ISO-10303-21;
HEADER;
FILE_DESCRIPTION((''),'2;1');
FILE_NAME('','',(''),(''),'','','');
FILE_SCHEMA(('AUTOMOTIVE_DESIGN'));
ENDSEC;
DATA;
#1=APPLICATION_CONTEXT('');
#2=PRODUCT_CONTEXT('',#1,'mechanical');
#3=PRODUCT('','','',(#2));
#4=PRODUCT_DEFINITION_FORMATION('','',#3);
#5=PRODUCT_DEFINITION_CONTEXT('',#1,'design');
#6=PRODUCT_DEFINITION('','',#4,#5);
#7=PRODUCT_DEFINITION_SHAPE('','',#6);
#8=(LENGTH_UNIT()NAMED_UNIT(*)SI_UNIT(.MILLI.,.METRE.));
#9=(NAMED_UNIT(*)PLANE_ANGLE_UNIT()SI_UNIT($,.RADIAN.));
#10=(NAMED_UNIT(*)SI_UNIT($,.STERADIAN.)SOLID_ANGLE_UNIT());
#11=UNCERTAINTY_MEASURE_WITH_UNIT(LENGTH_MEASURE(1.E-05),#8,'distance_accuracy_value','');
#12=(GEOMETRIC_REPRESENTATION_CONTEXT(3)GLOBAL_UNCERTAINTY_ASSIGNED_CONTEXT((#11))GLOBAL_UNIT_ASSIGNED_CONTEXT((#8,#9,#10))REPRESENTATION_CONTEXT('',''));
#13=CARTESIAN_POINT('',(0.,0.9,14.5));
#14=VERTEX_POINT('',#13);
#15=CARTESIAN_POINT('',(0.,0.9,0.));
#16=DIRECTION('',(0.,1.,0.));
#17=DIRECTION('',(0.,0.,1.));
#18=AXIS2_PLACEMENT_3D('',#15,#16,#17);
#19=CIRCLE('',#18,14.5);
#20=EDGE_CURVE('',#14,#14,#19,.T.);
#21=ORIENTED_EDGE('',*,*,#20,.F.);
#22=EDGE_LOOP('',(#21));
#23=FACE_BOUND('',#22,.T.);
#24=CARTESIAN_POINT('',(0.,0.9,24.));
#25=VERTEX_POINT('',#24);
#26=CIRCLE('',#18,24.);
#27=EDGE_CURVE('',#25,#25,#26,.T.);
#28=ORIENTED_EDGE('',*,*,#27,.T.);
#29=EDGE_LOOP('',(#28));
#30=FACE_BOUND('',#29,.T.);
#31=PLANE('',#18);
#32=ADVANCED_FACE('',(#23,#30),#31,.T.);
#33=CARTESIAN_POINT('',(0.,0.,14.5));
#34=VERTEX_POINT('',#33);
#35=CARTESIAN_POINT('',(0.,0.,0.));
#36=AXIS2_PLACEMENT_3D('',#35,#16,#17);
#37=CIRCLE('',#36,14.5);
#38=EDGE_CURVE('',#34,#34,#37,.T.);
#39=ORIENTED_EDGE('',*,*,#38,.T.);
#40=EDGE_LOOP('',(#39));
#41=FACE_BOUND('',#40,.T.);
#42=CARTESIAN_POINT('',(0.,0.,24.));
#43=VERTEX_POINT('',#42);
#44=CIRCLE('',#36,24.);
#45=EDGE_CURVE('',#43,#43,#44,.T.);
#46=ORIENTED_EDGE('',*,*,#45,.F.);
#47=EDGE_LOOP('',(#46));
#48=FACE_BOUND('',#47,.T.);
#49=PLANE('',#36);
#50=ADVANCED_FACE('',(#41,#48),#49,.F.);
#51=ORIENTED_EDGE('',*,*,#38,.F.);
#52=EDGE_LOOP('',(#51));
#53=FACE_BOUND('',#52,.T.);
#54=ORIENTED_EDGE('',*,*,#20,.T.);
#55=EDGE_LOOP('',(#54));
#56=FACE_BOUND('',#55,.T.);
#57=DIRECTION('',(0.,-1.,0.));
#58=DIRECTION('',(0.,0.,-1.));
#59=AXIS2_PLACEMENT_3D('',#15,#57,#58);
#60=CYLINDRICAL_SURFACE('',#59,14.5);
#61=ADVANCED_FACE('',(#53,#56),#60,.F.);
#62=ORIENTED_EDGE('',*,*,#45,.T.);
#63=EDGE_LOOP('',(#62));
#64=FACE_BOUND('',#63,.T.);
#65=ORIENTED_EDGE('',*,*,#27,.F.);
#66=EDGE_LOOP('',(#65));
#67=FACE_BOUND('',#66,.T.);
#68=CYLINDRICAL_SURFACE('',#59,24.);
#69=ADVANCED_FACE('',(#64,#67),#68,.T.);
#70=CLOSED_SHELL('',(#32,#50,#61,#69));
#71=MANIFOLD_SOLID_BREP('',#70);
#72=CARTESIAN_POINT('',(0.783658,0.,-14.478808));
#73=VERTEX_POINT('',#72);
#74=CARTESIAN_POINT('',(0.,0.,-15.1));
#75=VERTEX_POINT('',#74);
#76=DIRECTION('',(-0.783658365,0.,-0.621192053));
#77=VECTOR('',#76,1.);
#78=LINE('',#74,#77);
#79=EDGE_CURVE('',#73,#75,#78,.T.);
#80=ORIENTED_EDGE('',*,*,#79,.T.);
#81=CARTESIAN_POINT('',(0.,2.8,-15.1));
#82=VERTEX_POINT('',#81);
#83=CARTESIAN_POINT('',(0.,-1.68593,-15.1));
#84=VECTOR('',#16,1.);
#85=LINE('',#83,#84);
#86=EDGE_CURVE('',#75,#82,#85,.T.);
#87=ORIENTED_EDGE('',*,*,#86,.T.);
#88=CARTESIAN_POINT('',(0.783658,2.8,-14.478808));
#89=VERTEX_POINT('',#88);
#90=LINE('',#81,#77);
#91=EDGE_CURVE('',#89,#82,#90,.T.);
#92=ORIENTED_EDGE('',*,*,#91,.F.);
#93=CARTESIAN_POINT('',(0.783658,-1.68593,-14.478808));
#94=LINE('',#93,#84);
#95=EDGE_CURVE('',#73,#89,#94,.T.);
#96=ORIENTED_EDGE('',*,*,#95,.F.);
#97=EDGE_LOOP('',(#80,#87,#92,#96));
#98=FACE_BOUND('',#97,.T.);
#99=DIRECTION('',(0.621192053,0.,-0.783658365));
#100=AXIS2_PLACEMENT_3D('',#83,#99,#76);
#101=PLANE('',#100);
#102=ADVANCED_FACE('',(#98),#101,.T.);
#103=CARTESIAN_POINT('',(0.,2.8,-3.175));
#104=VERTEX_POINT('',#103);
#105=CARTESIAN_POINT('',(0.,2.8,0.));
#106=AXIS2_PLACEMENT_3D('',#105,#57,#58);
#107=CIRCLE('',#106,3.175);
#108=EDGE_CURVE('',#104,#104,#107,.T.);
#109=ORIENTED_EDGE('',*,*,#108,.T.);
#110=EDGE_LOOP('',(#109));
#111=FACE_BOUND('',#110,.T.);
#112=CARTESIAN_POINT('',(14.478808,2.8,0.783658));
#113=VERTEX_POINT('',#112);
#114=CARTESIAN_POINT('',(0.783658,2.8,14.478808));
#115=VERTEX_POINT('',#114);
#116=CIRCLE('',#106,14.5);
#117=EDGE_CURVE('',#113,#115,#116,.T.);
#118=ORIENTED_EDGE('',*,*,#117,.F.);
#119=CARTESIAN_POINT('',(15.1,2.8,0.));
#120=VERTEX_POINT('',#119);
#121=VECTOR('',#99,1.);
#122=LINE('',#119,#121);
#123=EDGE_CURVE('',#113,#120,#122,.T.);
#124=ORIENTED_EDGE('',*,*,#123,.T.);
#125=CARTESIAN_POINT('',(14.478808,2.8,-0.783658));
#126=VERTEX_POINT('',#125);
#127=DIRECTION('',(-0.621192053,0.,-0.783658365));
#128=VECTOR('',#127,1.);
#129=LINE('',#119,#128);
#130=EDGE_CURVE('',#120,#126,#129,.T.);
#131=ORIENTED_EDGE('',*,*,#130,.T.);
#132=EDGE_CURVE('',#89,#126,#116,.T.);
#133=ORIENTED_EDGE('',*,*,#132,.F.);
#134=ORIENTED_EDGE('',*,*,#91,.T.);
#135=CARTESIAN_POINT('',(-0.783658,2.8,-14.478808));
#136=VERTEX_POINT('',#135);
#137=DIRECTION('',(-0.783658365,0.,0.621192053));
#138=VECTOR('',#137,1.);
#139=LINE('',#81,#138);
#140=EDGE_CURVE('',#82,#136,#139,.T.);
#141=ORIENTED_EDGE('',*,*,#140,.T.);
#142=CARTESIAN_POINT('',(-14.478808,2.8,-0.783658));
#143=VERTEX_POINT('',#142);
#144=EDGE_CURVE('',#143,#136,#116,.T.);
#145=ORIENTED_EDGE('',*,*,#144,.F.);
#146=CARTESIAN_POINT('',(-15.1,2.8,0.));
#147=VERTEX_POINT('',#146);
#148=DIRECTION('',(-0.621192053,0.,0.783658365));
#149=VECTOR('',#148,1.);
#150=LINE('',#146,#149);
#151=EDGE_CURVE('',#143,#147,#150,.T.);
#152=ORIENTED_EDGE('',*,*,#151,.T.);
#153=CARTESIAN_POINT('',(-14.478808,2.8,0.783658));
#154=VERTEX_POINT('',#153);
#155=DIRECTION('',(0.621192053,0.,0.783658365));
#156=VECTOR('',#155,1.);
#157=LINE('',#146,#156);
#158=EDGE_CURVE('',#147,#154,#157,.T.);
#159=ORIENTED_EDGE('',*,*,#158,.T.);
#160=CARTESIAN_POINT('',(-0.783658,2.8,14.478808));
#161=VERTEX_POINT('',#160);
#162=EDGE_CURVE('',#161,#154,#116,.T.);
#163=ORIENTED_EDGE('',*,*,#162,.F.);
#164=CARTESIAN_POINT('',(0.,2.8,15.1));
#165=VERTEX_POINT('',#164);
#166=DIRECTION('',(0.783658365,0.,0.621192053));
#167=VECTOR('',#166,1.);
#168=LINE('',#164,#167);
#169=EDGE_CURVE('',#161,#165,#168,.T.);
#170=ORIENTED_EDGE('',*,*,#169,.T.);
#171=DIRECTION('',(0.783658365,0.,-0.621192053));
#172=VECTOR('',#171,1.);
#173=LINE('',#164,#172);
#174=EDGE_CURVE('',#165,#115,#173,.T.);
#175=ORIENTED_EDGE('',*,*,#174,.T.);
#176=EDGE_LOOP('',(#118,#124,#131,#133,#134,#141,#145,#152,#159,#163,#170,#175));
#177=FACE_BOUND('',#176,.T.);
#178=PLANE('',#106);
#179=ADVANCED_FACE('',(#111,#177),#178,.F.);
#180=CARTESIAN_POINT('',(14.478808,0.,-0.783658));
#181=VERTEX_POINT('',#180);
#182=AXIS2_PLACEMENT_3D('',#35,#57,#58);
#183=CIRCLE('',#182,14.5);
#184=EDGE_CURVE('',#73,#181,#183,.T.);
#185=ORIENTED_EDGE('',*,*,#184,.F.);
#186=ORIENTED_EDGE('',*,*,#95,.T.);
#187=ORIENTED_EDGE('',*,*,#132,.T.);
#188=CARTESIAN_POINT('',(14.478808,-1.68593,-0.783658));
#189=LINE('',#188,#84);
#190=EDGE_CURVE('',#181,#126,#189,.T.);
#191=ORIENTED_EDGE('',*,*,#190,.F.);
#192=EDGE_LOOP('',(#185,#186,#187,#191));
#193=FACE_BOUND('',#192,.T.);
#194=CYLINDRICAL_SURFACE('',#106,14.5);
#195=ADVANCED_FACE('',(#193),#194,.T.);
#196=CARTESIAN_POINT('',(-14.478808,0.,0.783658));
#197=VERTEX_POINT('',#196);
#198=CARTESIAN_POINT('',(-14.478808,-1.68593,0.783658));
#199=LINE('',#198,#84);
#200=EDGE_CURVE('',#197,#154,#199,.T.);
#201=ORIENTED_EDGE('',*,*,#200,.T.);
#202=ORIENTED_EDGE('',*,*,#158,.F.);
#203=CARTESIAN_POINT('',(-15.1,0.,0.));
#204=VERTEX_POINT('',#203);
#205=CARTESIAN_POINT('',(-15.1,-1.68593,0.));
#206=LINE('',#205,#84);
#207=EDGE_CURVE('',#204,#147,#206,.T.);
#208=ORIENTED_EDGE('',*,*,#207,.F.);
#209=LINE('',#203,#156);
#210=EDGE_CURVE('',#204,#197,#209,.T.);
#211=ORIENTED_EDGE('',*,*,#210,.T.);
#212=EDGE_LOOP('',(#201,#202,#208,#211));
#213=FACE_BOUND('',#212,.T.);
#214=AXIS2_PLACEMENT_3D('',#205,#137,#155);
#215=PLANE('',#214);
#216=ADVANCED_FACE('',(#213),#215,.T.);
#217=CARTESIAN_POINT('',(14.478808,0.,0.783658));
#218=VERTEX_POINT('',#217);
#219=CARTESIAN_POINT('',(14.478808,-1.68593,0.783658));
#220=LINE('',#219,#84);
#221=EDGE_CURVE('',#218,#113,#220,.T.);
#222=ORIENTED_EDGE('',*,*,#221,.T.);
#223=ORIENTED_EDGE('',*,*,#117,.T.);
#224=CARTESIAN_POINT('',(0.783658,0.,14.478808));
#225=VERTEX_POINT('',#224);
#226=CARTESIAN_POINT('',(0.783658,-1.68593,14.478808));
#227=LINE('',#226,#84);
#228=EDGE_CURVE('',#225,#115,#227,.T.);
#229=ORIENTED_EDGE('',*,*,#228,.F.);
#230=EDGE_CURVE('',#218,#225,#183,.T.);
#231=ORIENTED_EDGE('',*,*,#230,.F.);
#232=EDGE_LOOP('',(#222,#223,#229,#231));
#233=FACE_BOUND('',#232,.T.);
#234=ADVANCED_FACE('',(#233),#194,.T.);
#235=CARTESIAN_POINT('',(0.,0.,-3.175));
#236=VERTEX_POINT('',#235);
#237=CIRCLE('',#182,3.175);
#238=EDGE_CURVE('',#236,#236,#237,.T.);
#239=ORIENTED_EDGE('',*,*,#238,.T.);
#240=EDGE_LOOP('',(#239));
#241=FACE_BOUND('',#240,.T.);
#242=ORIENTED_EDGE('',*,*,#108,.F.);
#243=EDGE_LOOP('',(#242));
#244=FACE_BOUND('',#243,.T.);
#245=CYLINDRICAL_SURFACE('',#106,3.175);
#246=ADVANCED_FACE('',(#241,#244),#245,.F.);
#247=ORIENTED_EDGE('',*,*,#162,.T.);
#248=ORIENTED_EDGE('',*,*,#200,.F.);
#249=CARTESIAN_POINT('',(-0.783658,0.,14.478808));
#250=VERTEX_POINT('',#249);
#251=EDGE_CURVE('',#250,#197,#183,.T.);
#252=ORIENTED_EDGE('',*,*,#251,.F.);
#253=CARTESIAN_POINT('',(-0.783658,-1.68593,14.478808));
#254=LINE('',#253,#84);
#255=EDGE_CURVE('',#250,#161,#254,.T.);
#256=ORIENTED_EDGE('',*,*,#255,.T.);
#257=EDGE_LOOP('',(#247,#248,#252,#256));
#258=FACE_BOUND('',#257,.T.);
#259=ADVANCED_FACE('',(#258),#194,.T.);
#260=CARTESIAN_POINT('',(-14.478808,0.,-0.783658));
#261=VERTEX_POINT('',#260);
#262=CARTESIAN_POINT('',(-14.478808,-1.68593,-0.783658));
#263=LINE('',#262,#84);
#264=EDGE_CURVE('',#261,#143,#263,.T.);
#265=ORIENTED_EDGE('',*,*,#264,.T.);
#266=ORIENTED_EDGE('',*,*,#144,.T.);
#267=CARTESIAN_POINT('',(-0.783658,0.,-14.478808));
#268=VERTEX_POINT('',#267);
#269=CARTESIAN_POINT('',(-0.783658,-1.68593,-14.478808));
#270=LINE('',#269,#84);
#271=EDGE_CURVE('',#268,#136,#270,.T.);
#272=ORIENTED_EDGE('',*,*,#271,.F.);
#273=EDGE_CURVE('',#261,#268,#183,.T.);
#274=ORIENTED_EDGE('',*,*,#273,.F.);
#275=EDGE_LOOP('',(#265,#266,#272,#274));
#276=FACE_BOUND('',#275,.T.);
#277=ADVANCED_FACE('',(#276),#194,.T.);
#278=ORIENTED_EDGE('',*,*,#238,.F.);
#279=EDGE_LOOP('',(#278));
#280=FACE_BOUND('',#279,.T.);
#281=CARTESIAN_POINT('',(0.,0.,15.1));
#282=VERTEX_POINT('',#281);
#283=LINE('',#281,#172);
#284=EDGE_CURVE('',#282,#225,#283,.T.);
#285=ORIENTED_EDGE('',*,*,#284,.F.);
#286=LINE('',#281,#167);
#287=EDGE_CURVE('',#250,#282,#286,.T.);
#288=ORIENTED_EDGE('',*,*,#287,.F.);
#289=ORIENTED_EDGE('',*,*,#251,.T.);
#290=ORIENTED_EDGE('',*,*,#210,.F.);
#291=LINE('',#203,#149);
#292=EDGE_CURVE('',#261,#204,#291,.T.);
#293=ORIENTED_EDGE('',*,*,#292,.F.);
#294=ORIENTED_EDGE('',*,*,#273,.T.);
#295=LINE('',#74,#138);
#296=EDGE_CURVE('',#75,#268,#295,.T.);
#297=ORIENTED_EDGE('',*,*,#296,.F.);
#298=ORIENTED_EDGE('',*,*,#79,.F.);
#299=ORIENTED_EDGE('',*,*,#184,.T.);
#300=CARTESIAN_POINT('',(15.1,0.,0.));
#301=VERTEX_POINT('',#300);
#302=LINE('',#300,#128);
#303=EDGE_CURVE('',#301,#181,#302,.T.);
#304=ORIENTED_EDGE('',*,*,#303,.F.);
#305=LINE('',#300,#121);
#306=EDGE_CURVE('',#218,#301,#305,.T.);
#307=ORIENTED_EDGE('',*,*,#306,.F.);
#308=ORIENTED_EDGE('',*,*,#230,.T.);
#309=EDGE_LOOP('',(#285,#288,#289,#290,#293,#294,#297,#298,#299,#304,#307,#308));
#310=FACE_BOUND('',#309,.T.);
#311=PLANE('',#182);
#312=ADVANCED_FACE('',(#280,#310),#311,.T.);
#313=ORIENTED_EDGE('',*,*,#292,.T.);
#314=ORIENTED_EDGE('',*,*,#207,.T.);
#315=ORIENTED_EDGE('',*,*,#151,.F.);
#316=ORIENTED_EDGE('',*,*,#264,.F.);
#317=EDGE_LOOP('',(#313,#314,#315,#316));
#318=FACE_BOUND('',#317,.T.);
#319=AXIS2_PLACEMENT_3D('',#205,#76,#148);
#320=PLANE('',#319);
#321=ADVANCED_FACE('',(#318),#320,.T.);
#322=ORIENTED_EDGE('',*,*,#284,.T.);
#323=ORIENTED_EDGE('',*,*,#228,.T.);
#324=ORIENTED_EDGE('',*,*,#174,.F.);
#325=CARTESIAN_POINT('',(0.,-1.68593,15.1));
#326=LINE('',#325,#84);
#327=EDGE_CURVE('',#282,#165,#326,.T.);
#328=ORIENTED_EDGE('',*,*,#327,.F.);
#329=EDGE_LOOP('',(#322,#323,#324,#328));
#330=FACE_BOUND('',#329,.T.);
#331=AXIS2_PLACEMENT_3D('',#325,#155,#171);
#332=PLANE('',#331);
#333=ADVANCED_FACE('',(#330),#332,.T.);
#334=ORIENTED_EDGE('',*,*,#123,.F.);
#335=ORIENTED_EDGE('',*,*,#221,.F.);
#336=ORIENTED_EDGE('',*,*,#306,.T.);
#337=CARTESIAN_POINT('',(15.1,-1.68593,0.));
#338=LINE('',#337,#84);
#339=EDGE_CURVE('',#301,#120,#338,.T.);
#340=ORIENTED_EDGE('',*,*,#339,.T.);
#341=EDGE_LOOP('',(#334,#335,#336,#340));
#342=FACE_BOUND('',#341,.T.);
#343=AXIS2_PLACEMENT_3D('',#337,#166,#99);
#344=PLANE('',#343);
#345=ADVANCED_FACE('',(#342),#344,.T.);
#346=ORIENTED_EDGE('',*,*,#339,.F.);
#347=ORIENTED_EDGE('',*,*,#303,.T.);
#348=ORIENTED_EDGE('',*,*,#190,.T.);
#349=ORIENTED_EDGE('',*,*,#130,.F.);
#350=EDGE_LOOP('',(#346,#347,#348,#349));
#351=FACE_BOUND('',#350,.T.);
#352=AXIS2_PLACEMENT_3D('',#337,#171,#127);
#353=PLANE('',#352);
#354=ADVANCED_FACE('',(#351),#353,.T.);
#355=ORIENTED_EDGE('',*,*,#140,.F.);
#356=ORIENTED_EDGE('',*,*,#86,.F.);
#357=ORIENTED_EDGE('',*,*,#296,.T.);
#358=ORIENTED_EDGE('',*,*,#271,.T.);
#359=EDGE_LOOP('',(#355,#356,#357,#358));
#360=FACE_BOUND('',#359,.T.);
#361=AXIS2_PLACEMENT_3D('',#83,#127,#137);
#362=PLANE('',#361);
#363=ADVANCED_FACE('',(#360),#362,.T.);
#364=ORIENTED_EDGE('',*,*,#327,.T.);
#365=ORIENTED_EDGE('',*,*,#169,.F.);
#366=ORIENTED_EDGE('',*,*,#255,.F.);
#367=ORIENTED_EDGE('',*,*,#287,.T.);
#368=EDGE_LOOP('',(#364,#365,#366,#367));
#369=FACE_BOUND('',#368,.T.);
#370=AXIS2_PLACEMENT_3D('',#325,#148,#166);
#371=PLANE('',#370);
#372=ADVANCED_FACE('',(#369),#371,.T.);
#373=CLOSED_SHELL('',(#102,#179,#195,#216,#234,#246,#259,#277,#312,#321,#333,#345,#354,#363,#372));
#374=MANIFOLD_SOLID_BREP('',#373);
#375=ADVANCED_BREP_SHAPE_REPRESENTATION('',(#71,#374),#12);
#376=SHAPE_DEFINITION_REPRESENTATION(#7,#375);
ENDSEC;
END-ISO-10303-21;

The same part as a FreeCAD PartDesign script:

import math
import FreeCAD as App
import Part
import Sketcher

doc = App.newDocument("Part")
body = doc.addObject("PartDesign::Body", "Body")

sketch1 = body.newObject("Sketcher::SketchObject", "Sketch")
sketch1.AttachmentSupport = (doc.getObject("XZ_Plane"), [""])
sketch1.MapMode = "FlatFace"
sketch1.addGeometry(Part.Circle(App.Vector(0, 0, 0), App.Vector(0, 0, 1), 24), False)
sketch1.addGeometry(Part.Circle(App.Vector(0, 0, 0), App.Vector(0, 0, 1), 14), False)
sketch1.addConstraint(Sketcher.Constraint("Coincident", 0, 3, -1, 1))
sketch1.addConstraint(Sketcher.Constraint("Coincident", 1, 3, -1, 1))
sketch1.addConstraint(Sketcher.Constraint("Diameter", 0, 48.0))
sketch1.addConstraint(Sketcher.Constraint("Diameter", 1, 29.0))
pad1 = body.newObject("PartDesign::Pad", "Pad")
pad1.Profile = sketch1
pad1.Length = 0.9
pad1.Reversed = True
body2 = doc.addObject("PartDesign::Body", "Body001")

sketch2 = body2.newObject("Sketcher::SketchObject", "Sketch001")
sketch2.AttachmentSupport = (doc.getObject("XZ_Plane001"), [""])
sketch2.MapMode = "FlatFace"
sketch2.addGeometry(Part.Circle(App.Vector(0, 0, 0), App.Vector(0, 0, 1), 14.5), False)
sketch2.addGeometry(Part.Circle(App.Vector(0, 0, 0), App.Vector(0, 0, 1), 3.2), False)
sketch2.addConstraint(Sketcher.Constraint("Coincident", 0, 3, -1, 1))
sketch2.addConstraint(Sketcher.Constraint("Coincident", 1, 3, -1, 1))
sketch2.addConstraint(Sketcher.Constraint("Diameter", 0, 29.0))
sketch2.addConstraint(Sketcher.Constraint("Diameter", 1, 6.35))
pad2 = body2.newObject("PartDesign::Pad", "Pad001")
pad2.Profile = sketch2
pad2.Length = 2.8
pad2.Reversed = True

sketch3 = body2.newObject("Sketcher::SketchObject", "Sketch002")
sketch3.AttachmentSupport = (doc.getObject("XZ_Plane001"), [""])
sketch3.MapMode = "FlatFace"
sketch3.addGeometry(Part.LineSegment(App.Vector(-14.5, -0.8, 0), App.Vector(-15.1, 0, 0)), False)
sketch3.addGeometry(Part.LineSegment(App.Vector(-15.1, 0, 0), App.Vector(-14.5, 0.8, 0)), False)
sketch3.addGeometry(Part.ArcOfCircle(Part.Circle(App.Vector(0, 0, 0), App.Vector(0, 0, 1), 14.5), math.radians(176.9), math.radians(183.1)), False)
sketch3.addGeometry(Part.LineSegment(App.Vector(0.8, -14.5, 0), App.Vector(0, -15.1, 0)), False)
sketch3.addGeometry(Part.LineSegment(App.Vector(0, -15.1, 0), App.Vector(-0.8, -14.5, 0)), False)
sketch3.addGeometry(Part.ArcOfCircle(Part.Circle(App.Vector(0, 0, 0), App.Vector(0, 0, 1), 14.5), math.radians(-93.1), math.radians(-86.9)), False)
sketch3.addGeometry(Part.LineSegment(App.Vector(14.5, 0.8, 0), App.Vector(15.1, 0, 0)), False)
sketch3.addGeometry(Part.LineSegment(App.Vector(15.1, 0, 0), App.Vector(14.5, -0.8, 0)), False)
sketch3.addGeometry(Part.ArcOfCircle(Part.Circle(App.Vector(0, 0, 0), App.Vector(0, 0, 1), 14.5), math.radians(-3.1), math.radians(3.1)), False)
sketch3.addGeometry(Part.LineSegment(App.Vector(-0.8, 14.5, 0), App.Vector(0, 15.1, 0)), False)
sketch3.addGeometry(Part.LineSegment(App.Vector(0, 15.1, 0), App.Vector(0.8, 14.5, 0)), False)
sketch3.addGeometry(Part.ArcOfCircle(Part.Circle(App.Vector(0, 0, 0), App.Vector(0, 0, 1), 14.5), math.radians(86.9), math.radians(93.1)), False)
sketch3.addConstraint(Sketcher.Constraint("Coincident", 0, 2, 1, 1))
sketch3.addConstraint(Sketcher.Constraint("Coincident", 1, 2, 2, 1))
sketch3.addConstraint(Sketcher.Constraint("Coincident", 2, 2, 0, 1))
sketch3.addConstraint(Sketcher.Constraint("Coincident", 3, 2, 4, 1))
sketch3.addConstraint(Sketcher.Constraint("Coincident", 4, 2, 5, 1))
sketch3.addConstraint(Sketcher.Constraint("Coincident", 5, 2, 3, 1))
sketch3.addConstraint(Sketcher.Constraint("Coincident", 6, 2, 7, 1))
sketch3.addConstraint(Sketcher.Constraint("Coincident", 7, 2, 8, 1))
sketch3.addConstraint(Sketcher.Constraint("Coincident", 8, 2, 6, 1))
sketch3.addConstraint(Sketcher.Constraint("Coincident", 9, 2, 10, 1))
sketch3.addConstraint(Sketcher.Constraint("Coincident", 10, 2, 11, 1))
sketch3.addConstraint(Sketcher.Constraint("Coincident", 11, 2, 9, 1))
sketch3.addConstraint(Sketcher.Constraint("Coincident", 2, 3, -1, 1))
sketch3.addConstraint(Sketcher.Constraint("Coincident", 5, 3, -1, 1))
sketch3.addConstraint(Sketcher.Constraint("Coincident", 8, 3, -1, 1))
sketch3.addConstraint(Sketcher.Constraint("Coincident", 11, 3, -1, 1))
sketch3.addConstraint(Sketcher.Constraint("Equal", 2, 5))
sketch3.addConstraint(Sketcher.Constraint("Equal", 5, 8))
sketch3.addConstraint(Sketcher.Constraint("Equal", 8, 11))
sketch3.addConstraint(Sketcher.Constraint("Symmetric", 0, 2, 6, 2, -1, 1))
sketch3.addConstraint(Sketcher.Constraint("Symmetric", 3, 2, 9, 2, -1, 1))
sketch3.addConstraint(Sketcher.Constraint("PointOnObject", 0, 2, -1))
sketch3.addConstraint(Sketcher.Constraint("PointOnObject", 3, 2, -2))
sketch3.addConstraint(Sketcher.Constraint("Perpendicular", 0, 3))
sketch3.addConstraint(Sketcher.Constraint("Perpendicular", 1, 4))
sketch3.addConstraint(Sketcher.Constraint("Perpendicular", 3, 6))
sketch3.addConstraint(Sketcher.Constraint("Perpendicular", 4, 7))
sketch3.addConstraint(Sketcher.Constraint("Perpendicular", 6, 9))
sketch3.addConstraint(Sketcher.Constraint("Perpendicular", 7, 10))
sketch3.addConstraint(Sketcher.Constraint("Horizontal", 4, 2, 5, 2))
sketch3.addConstraint(Sketcher.Constraint("Equal", 1, 3))
sketch3.addConstraint(Sketcher.Constraint("Radius", 2, 14.5))
sketch3.addConstraint(Sketcher.Constraint("Distance", 0, 1.0))
sketch3.addConstraint(Sketcher.Constraint("DistanceX", 0, 2, -1, 1, 15.1))
pad3 = body2.newObject("PartDesign::Pad", "Pad002")
pad3.Profile = sketch3
pad3.Length = 2.8
pad3.Reversed = True

doc.recompute()
